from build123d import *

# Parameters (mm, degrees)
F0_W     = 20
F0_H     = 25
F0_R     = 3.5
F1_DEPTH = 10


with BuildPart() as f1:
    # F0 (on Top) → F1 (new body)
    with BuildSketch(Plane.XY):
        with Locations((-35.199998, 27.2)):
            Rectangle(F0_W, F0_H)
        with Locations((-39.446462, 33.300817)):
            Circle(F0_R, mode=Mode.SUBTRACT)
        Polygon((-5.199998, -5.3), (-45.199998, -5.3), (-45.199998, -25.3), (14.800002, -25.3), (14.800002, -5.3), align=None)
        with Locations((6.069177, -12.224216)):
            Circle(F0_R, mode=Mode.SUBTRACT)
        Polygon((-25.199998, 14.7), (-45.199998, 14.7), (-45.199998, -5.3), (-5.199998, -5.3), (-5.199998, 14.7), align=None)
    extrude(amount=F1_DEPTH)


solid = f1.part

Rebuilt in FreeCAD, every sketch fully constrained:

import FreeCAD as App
import Part
import Sketcher
from FreeCAD import Vector


def add_polygon(sketch, points):
    """Adds a closed chain of lines whose ends are joined by coincident constraints."""
    first, n = sketch.GeometryCount, len(points)
    for a, b in zip(points, points[1:] + points[:1]):
        sketch.addGeometry(Part.LineSegment(App.Vector(*a, 0), App.Vector(*b, 0)), False)
    for i in range(n):
        sketch.addConstraint(Sketcher.Constraint("Coincident", first + i, 2, first + (i + 1) % n, 1))

doc = App.newDocument("Part")
params = doc.addObject("Spreadsheet::Sheet", "Params")
for row, (alias, value) in enumerate([
    ("sketch1_diameter", "7 mm"),
    ("sketch1_width", "60 mm"),
    ("sketch1_height", "65 mm"),
    ("pad1_length", "10 mm"),
], start=1):
    params.set(f"A{row}", alias)
    params.set(f"B{row}", "=" + value)
    params.setAlias(f"B{row}", alias)

body = doc.addObject("PartDesign::Body", "Body")

# Sketch on XY plane
sketch1 = doc.addObject("Sketcher::SketchObject", "Sketch")
body.addObject(sketch1)
sketch1.AttachmentSupport = (doc.XY_Plane, [""])
sketch1.MapMode = "FlatFace"
add_polygon(sketch1, [(-45.199998, 39.7), (-45.199998, -25.3), (14.800002, -25.3), (14.800002, -5.3), (-5.199998, -5.3), (-5.199998, 14.7), (-25.199998, 14.7), (-25.199998, 39.7)])  # lines 0-7
sketch1.addGeometry(Part.Circle(Vector(-39.446462, 33.300817, 0), Vector(0, 0, 1), 3.5), False)  # 8
sketch1.addGeometry(Part.Circle(Vector(6.069177, -12.224216, 0), Vector(0, 0, 1), 3.5), False)  # 9
sketch1.addConstraint(Sketcher.Constraint("Vertical", 0))
sketch1.addConstraint(Sketcher.Constraint("Horizontal", 1))
sketch1.addConstraint(Sketcher.Constraint("Vertical", 2))
sketch1.addConstraint(Sketcher.Constraint("Horizontal", 3))
sketch1.addConstraint(Sketcher.Constraint("Vertical", 4))
sketch1.addConstraint(Sketcher.Constraint("Horizontal", 5))
sketch1.addConstraint(Sketcher.Constraint("Vertical", 6))
sketch1.addConstraint(Sketcher.Constraint("Horizontal", 7))
sketch1.addConstraint(Sketcher.Constraint("Equal", 8, 9))
sketch1.addConstraint(Sketcher.Constraint("Equal", 3, 5))
sketch1.addConstraint(Sketcher.Constraint("Equal", 5, 7))
sketch1.addConstraint(Sketcher.Constraint("Equal", 7, 2))
sketch1.addConstraint(Sketcher.Constraint("Equal", 2, 4))
sketch1.addConstraint(Sketcher.Constraint("Diameter", 8, 7.0))
sketch1.addConstraint(Sketcher.Constraint("DistanceX", 1, 1, 1, 2, 60.0))
sketch1.addConstraint(Sketcher.Constraint("DistanceY", 0, 2, 0, 1, 65.0))
sketch1.addConstraint(Sketcher.Constraint("DistanceY", 0, 2, -1, 1, 25.3))
sketch1.addConstraint(Sketcher.Constraint("DistanceX", -1, 1, 1, 2, 14.800002))
sketch1.addConstraint(Sketcher.Constraint("DistanceX", 8, 3, -1, 1, 39.446462))
sketch1.addConstraint(Sketcher.Constraint("DistanceX", 8, 3, 9, 3, 45.515639))
sketch1.addConstraint(Sketcher.Constraint("DistanceY", -1, 1, 8, 3, 33.300817))
sketch1.addConstraint(Sketcher.Constraint("DistanceY", 9, 3, -1, 1, 12.224216))
sketch1.setExpression("Constraints[21]", "Params.sketch1_diameter")
sketch1.setExpression("Constraints[22]", "Params.sketch1_width")
sketch1.setExpression("Constraints[23]", "Params.sketch1_height")
pad1 = doc.addObject("PartDesign::Pad", "Pad")
body.addObject(pad1)
pad1.Profile = sketch1
pad1.setExpression("Length", "Params.pad1_length")

doc.recompute()
